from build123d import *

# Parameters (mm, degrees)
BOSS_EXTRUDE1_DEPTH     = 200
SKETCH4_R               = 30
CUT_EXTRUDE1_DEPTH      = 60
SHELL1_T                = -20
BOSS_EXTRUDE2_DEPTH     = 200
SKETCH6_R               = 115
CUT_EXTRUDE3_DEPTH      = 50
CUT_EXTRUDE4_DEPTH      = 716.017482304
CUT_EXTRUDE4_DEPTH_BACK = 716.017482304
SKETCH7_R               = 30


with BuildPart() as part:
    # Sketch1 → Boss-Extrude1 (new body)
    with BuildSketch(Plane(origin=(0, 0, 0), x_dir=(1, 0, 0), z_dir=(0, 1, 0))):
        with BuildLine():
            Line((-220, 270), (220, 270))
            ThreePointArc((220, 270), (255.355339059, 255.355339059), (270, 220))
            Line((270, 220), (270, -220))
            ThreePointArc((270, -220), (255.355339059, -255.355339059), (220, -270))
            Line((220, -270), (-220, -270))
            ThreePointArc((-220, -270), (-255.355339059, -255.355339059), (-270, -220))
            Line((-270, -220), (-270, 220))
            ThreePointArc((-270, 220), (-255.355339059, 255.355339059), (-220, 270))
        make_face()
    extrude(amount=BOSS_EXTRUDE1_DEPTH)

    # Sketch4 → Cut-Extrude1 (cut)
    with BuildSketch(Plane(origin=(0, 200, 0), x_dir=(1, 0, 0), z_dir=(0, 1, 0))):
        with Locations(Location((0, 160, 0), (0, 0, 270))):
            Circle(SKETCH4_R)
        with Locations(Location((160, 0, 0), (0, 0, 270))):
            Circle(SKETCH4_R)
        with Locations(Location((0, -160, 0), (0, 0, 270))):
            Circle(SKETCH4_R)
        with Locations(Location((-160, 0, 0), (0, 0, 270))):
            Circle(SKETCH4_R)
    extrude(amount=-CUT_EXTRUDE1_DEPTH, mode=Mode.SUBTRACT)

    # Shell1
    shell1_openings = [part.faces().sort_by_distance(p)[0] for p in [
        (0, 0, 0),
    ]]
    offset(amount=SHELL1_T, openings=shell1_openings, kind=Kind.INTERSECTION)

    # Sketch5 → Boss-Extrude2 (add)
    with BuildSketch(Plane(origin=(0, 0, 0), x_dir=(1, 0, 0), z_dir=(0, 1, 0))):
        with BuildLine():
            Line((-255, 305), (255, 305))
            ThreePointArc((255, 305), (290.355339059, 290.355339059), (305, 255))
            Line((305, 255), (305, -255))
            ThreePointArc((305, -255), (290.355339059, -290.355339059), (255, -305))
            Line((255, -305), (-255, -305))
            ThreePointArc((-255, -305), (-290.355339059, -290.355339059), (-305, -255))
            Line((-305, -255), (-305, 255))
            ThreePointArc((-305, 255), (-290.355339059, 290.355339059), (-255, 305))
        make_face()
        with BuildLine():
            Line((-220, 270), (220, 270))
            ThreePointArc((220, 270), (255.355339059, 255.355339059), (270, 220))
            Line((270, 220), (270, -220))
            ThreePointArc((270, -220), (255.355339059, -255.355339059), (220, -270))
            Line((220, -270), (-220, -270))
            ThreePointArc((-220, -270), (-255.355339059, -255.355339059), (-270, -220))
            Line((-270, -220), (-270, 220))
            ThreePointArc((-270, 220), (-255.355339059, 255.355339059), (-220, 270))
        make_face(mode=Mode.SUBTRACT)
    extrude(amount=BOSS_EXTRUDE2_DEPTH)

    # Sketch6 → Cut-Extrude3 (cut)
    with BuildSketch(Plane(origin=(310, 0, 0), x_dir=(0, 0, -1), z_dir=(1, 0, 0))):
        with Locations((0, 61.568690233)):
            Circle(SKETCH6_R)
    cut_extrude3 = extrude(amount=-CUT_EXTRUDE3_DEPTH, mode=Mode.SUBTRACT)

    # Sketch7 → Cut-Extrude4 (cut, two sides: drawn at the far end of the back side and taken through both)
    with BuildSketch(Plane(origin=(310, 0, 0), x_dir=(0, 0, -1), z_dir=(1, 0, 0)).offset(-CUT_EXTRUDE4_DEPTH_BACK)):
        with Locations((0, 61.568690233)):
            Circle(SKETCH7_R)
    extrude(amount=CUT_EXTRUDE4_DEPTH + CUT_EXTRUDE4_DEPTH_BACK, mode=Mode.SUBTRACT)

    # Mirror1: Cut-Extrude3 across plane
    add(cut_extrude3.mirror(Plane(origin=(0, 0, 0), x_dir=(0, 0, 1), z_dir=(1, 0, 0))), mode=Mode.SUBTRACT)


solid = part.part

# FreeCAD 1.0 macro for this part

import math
import FreeCAD as App
import Part
import Sketcher

V = App.Vector
Q = App.Units.Quantity


def faces_at(feature, points):
    """Names of the faces that lie closest to the given points."""
    faces = feature.Shape.Faces
    near = lambda p: min(range(len(faces)), key=lambda i: faces[i].distToShape(Part.Vertex(*p))[0])
    return sorted({f"Face{near(p) + 1}" for p in points})

doc = App.newDocument("Part")
body = doc.addObject("PartDesign::Body", "Body")

sketch1 = body.newObject("Sketcher::SketchObject", "Sketch")
sketch1.AttachmentSupport = (doc.getObject("XZ_Plane"), [""])
sketch1.MapMode = "FlatFace"
sketch1.addGeometry([
    Part.LineSegment(V(220, -270, 0), V(-220, -270, 0)),
    Part.ArcOfCircle(Part.Circle(V(-220, -220, 0), V(0, 0, 1), 50), math.radians(-180), math.radians(-90)),
    Part.LineSegment(V(-270, -220, 0), V(-270, 220, 0)),
    Part.ArcOfCircle(Part.Circle(V(-220, 220, 0), V(0, 0, 1), 50), math.radians(90), math.radians(180)),
    Part.LineSegment(V(-220, 270, 0), V(220, 270, 0)),
    Part.ArcOfCircle(Part.Circle(V(220, 220, 0), V(0, 0, 1), 50), math.radians(0), math.radians(90)),
    Part.LineSegment(V(270, 220, 0), V(270, -220, 0)),
    Part.ArcOfCircle(Part.Circle(V(220, -220, 0), V(0, 0, 1), 50), math.radians(-90), math.radians(0)),
], False)
sketch1.addConstraint([
    Sketcher.Constraint("Tangent", 0, 2, 1, 2),
    Sketcher.Constraint("Tangent", 1, 1, 2, 1),
    Sketcher.Constraint("Tangent", 2, 2, 3, 2),
    Sketcher.Constraint("Tangent", 3, 1, 4, 1),
    Sketcher.Constraint("Tangent", 4, 2, 5, 2),
    Sketcher.Constraint("Tangent", 5, 1, 6, 1),
    Sketcher.Constraint("Tangent", 6, 2, 7, 2),
    Sketcher.Constraint("Tangent", 7, 1, 0, 1),
    Sketcher.Constraint("Horizontal", 0),
    Sketcher.Constraint("Vertical", 2),
    Sketcher.Constraint("Horizontal", 4),
    Sketcher.Constraint("Vertical", 6),
    Sketcher.Constraint("Equal", 1, 3),
    Sketcher.Constraint("Equal", 3, 5),
    Sketcher.Constraint("Equal", 5, 7),
    Sketcher.Constraint("Symmetric", 1, 3, 5, 3, -1, 1),
    Sketcher.Constraint("Equal", 4, 2),
    Sketcher.Constraint("Radius", 1, Q("50 mm")),
    Sketcher.Constraint("DistanceX", 0, 2, 0, 1, Q("440 mm")),
])
pad1 = body.newObject("PartDesign::Pad", "Pad")
pad1.Profile = sketch1
pad1.Length = 200
pad1.Reversed = True

sketch2 = body.newObject("Sketcher::SketchObject", "Sketch001")
sketch2.AttachmentSupport = (doc.getObject("XZ_Plane"), [""])
sketch2.MapMode = "FlatFace"
sketch2.AttachmentOffset = App.Placement(V(0, 0, -200), App.Rotation())
sketch2.addGeometry([
    Part.Circle(V(0, -160, 0), V(0, 0, 1), 30),
    Part.Circle(V(160, 0, 0), V(0, 0, 1), 30),
    Part.Circle(V(0, 160, 0), V(0, 0, 1), 30),
    Part.Circle(V(-160, 0, 0), V(0, 0, 1), 30),
], False)
sketch2.addConstraint([
    Sketcher.Constraint("Equal", 0, 1),
    Sketcher.Constraint("Equal", 1, 2),
    Sketcher.Constraint("Equal", 2, 3),
    Sketcher.Constraint("Symmetric", 0, 3, 2, 3, -1, 1),
    Sketcher.Constraint("Symmetric", 1, 3, 3, 3, -1, 1),
    Sketcher.Constraint("PointOnObject", 0, 3, -2),
    Sketcher.Constraint("PointOnObject", 1, 3, -1),
    Sketcher.Constraint("Diameter", 0, Q("60 mm")),
    Sketcher.Constraint("DistanceY", 0, 3, -1, 1, Q("160 mm")),
    Sketcher.Constraint("DistanceX", -1, 1, 1, 3, Q("160 mm")),
])
pocket1 = body.newObject("PartDesign::Pocket", "Pocket")
pocket1.Profile = sketch2
pocket1.Length = 60
pocket1.Reversed = True
doc.recompute()

thickness = body.newObject("PartDesign::Thickness", "Thickness")
thickness.Base = (pocket1, faces_at(pocket1, [(0, 0, 0)]))
thickness.Value = 20
thickness.Reversed = True
thickness.Join = "Intersection"

sketch3 = body.newObject("Sketcher::SketchObject", "Sketch002")
sketch3.AttachmentSupport = (doc.getObject("XZ_Plane"), [""])
sketch3.MapMode = "FlatFace"
sketch3.addGeometry([
    Part.LineSegment(V(255, -305, 0), V(-255, -305, 0)),
    Part.ArcOfCircle(Part.Circle(V(-255, -255, 0), V(0, 0, 1), 50), math.radians(-180), math.radians(-90)),
    Part.LineSegment(V(-305, -255, 0), V(-305, 255, 0)),
    Part.ArcOfCircle(Part.Circle(V(-255, 255, 0), V(0, 0, 1), 50), math.radians(90), math.radians(180)),
    Part.LineSegment(V(-255, 305, 0), V(255, 305, 0)),
    Part.ArcOfCircle(Part.Circle(V(255, 255, 0), V(0, 0, 1), 50), math.radians(0), math.radians(90)),
    Part.LineSegment(V(305, 255, 0), V(305, -255, 0)),
    Part.ArcOfCircle(Part.Circle(V(255, -255, 0), V(0, 0, 1), 50), math.radians(-90), math.radians(0)),
    Part.LineSegment(V(-220, -270, 0), V(220, -270, 0)),
    Part.ArcOfCircle(Part.Circle(V(220, -220, 0), V(0, 0, 1), 50), math.radians(-90), math.radians(0)),
    Part.LineSegment(V(270, -220, 0), V(270, 220, 0)),
    Part.ArcOfCircle(Part.Circle(V(220, 220, 0), V(0, 0, 1), 50), math.radians(0), math.radians(90)),
    Part.LineSegment(V(220, 270, 0), V(-220, 270, 0)),
    Part.ArcOfCircle(Part.Circle(V(-220, 220, 0), V(0, 0, 1), 50), math.radians(90), math.radians(180)),
    Part.LineSegment(V(-270, 220, 0), V(-270, -220, 0)),
    Part.ArcOfCircle(Part.Circle(V(-220, -220, 0), V(0, 0, 1), 50), math.radians(-180), math.radians(-90)),
], False)
sketch3.addConstraint([
    Sketcher.Constraint("Tangent", 0, 2, 1, 2),
    Sketcher.Constraint("Tangent", 1, 1, 2, 1),
    Sketcher.Constraint("Tangent", 2, 2, 3, 2),
    Sketcher.Constraint("Tangent", 3, 1, 4, 1),
    Sketcher.Constraint("Tangent", 4, 2, 5, 2),
    Sketcher.Constraint("Tangent", 5, 1, 6, 1),
    Sketcher.Constraint("Tangent", 6, 2, 7, 2),
    Sketcher.Constraint("Tangent", 7, 1, 0, 1),
    Sketcher.Constraint("Tangent", 8, 2, 9, 1),
    Sketcher.Constraint("Tangent", 9, 2, 10, 1),
    Sketcher.Constraint("Tangent", 10, 2, 11, 1),
    Sketcher.Constraint("Tangent", 11, 2, 12, 1),
    Sketcher.Constraint("Tangent", 12, 2, 13, 1),
    Sketcher.Constraint("Tangent", 13, 2, 14, 1),
    Sketcher.Constraint("Tangent", 14, 2, 15, 1),
    Sketcher.Constraint("Tangent", 15, 2, 8, 1),
    Sketcher.Constraint("Horizontal", 0),
    Sketcher.Constraint("Vertical", 2),
    Sketcher.Constraint("Horizontal", 4),
    Sketcher.Constraint("Vertical", 6),
    Sketcher.Constraint("Horizontal", 8),
    Sketcher.Constraint("Vertical", 10),
    Sketcher.Constraint("Horizontal", 12),
    Sketcher.Constraint("Vertical", 14),
    Sketcher.Constraint("Equal", 1, 3),
    Sketcher.Constraint("Equal", 3, 5),
    Sketcher.Constraint("Equal", 5, 7),
    Sketcher.Constraint("Equal", 7, 9),
    Sketcher.Constraint("Equal", 9, 11),
    Sketcher.Constraint("Equal", 11, 13),
    Sketcher.Constraint("Equal", 13, 15),
    Sketcher.Constraint("Symmetric", 1, 3, 5, 3, -1, 1),
    Sketcher.Constraint("Symmetric", 9, 3, 13, 3, -1, 1),
    Sketcher.Constraint("Equal", 4, 2),
    Sketcher.Constraint("Equal", 12, 10),
    Sketcher.Constraint("Radius", 1, Q("50 mm")),
    Sketcher.Constraint("DistanceX", 0, 2, 0, 1, Q("510 mm")),
    Sketcher.Constraint("DistanceX", 8, 1, 8, 2, Q("440 mm")),
])
pad2 = body.newObject("PartDesign::Pad", "Pad001")
pad2.Profile = sketch3
pad2.Length = 200
pad2.Reversed = True

sketch4 = body.newObject("Sketcher::SketchObject", "Sketch003")
sketch4.AttachmentSupport = (doc.getObject("YZ_Plane"), [""])
sketch4.MapMode = "FlatFace"
sketch4.AttachmentOffset = App.Placement(V(0, 0, 310), App.Rotation())
sketch4.addGeometry(Part.Circle(V(62, 0, 0), V(0, 0, 1), 115), False)
sketch4.addConstraint([
    Sketcher.Constraint("PointOnObject", 0, 3, -1),
    Sketcher.Constraint("Diameter", 0, Q("230 mm")),
    Sketcher.Constraint("DistanceX", -1, 1, 0, 3, Q("61.56869 mm")),
])
pocket2 = body.newObject("PartDesign::Pocket", "Pocket001")
pocket2.Profile = sketch4
pocket2.Length = 50

sketch5 = body.newObject("Sketcher::SketchObject", "Sketch004")
sketch5.AttachmentSupport = (doc.getObject("YZ_Plane"), [""])
sketch5.MapMode = "FlatFace"
sketch5.AttachmentOffset = App.Placement(V(0, 0, 310), App.Rotation())
sketch5.addGeometry(Part.Circle(V(62, 0, 0), V(0, 0, 1), 30), False)
sketch5.addConstraint([
    Sketcher.Constraint("PointOnObject", 0, 3, -1),
    Sketcher.Constraint("Diameter", 0, Q("60 mm")),
    Sketcher.Constraint("DistanceX", -1, 1, 0, 3, Q("61.56869 mm")),
])
pocket3 = body.newObject("PartDesign::Pocket", "Pocket002")
pocket3.Profile = sketch5
pocket3.Type = "ThroughAll"
pocket3.Midplane = True
doc.recompute()

mirrored = body.newObject("PartDesign::Mirrored", "Mirrored")
mirrored.Originals = [pocket2]
mirrored.MirrorPlane = (doc.getObject("YZ_Plane"), [""])
body.Tip = mirrored

doc.recompute()
